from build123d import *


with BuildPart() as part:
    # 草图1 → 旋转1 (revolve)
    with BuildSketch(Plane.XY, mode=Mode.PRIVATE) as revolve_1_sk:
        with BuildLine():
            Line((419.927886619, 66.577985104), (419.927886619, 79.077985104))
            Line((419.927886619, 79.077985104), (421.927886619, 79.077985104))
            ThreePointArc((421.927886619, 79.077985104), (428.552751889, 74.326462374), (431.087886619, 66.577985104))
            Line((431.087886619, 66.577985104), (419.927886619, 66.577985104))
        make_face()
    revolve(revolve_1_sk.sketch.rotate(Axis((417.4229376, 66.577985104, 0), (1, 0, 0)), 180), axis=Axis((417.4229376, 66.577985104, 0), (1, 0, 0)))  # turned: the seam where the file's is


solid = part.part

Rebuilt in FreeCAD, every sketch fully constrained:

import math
import FreeCAD as App
import Part
import Sketcher
Q = App.Units.Quantity

doc = App.newDocument("Part")
body = doc.addObject("PartDesign::Body", "Body")

# Sketch on XY plane
sketch1 = body.newObject("Sketcher::SketchObject", "Sketch")
sketch1.AttachmentSupport = (doc.getObject("XY_Plane"), [""])
sketch1.MapMode = "FlatFace"
sketch1.addGeometry(Part.LineSegment(App.Vector(419.9, 79.1, 0), App.Vector(419.9, 66.6, 0)), False)
sketch1.addGeometry(Part.LineSegment(App.Vector(419.9, 66.6, 0), App.Vector(431.1, 66.6, 0)), False)
sketch1.addGeometry(Part.ArcOfCircle(Part.Circle(App.Vector(418, 66.6, 0), App.Vector(0, 0, 1), 13.1), math.radians(0), math.radians(72)), False)
sketch1.addGeometry(Part.LineSegment(App.Vector(421.9, 79.1, 0), App.Vector(419.9, 79.1, 0)), False)
sketch1.addGeometry(Part.LineSegment(App.Vector(418, 66.6, 0), App.Vector(431.1, 66.6, 0)), True)  # axis
sketch1.addConstraint(Sketcher.Constraint("Coincident", 0, 2, 1, 1))
sketch1.addConstraint(Sketcher.Constraint("Coincident", 1, 2, 2, 1))
sketch1.addConstraint(Sketcher.Constraint("Coincident", 2, 2, 3, 1))
sketch1.addConstraint(Sketcher.Constraint("Coincident", 3, 2, 0, 1))
sketch1.addConstraint(Sketcher.Constraint("Vertical", 0))
sketch1.addConstraint(Sketcher.Constraint("Horizontal", 1))
sketch1.addConstraint(Sketcher.Constraint("Horizontal", 3))
sketch1.addConstraint(Sketcher.Constraint("Horizontal", 4))
sketch1.addConstraint(Sketcher.Constraint("Coincident", 4, 1, 2, 3))
sketch1.addConstraint(Sketcher.Constraint("Coincident", 4, 2, 1, 2))
sketch1.addConstraint(Sketcher.Constraint("DistanceX", 3, 2, 3, 1, Q("2 mm")))
sketch1.addConstraint(Sketcher.Constraint("DistanceY", 0, 2, 0, 1, Q("12.5 mm")))
sketch1.addConstraint(Sketcher.Constraint("DistanceX", 1, 1, 1, 2, Q("11.16 mm")))
sketch1.addConstraint(Sketcher.Constraint("DistanceX", -1, 1, 2, 3, Q("417.978956 mm")))
sketch1.addConstraint(Sketcher.Constraint("DistanceY", -1, 1, 2, 3, Q("66.577985 mm")))
revolution = body.newObject("PartDesign::Revolution", "Revolution")
revolution.Profile = sketch1
revolution.ReferenceAxis = (sketch1, ["Axis0"])
revolution.Angle = 360

doc.recompute()
